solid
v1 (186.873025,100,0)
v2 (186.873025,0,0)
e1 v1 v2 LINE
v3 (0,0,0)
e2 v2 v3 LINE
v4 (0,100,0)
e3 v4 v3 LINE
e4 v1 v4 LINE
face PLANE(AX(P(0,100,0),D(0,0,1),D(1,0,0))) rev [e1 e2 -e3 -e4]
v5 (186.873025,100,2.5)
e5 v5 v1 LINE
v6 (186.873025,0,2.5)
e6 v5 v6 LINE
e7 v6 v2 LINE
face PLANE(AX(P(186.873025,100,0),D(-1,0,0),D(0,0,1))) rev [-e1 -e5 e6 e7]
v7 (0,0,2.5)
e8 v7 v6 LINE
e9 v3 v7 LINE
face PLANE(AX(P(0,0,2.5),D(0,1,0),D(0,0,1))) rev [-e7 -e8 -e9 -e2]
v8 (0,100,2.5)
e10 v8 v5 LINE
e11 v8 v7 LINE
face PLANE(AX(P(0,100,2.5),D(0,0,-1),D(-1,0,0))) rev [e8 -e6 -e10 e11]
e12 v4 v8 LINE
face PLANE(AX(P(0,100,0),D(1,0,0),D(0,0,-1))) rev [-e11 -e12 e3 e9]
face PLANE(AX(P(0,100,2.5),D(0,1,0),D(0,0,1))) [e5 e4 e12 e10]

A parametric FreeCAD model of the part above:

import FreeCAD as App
import Part
import Sketcher
from FreeCAD import Vector
Q = App.Units.Quantity


def add_polygon(sketch, points):
    """Adds a closed chain of lines whose ends are joined by coincident constraints."""
    first, n = sketch.GeometryCount, len(points)
    for a, b in zip(points, points[1:] + points[:1]):
        sketch.addGeometry(Part.LineSegment(App.Vector(*a, 0), App.Vector(*b, 0)), False)
    for i in range(n):
        sketch.addConstraint(Sketcher.Constraint("Coincident", first + i, 2, first + (i + 1) % n, 1))

doc = App.newDocument("Part")
body = doc.addObject("PartDesign::Body", "Body")

# Sketch on XZ plane
sketch1 = body.newObject("Sketcher::SketchObject", "Sketch")
sketch1.AttachmentSupport = (doc.getObject("XZ_Plane"), [""])
sketch1.MapMode = "FlatFace"
add_polygon(sketch1, [(0, 0), (0, 2.5), (186.873025, 2.5), (186.873025, 0)])  # lines 0-3
sketch1.addConstraint(Sketcher.Constraint("Vertical", 0))
sketch1.addConstraint(Sketcher.Constraint("Horizontal", 1))
sketch1.addConstraint(Sketcher.Constraint("Vertical", 2))
sketch1.addConstraint(Sketcher.Constraint("Horizontal", 3))
sketch1.addConstraint(Sketcher.Constraint("Coincident", 3, 2, -1, 1))
sketch1.addConstraint(Sketcher.Constraint("DistanceY", 0, 1, 0, 2, Q("2.5 mm")))
sketch1.addConstraint(Sketcher.Constraint("DistanceX", 1, 1, 1, 2, Q("186.873025 mm")))
pad1 = body.newObject("PartDesign::Pad", "Pad")
pad1.Profile = sketch1
pad1.Length = 100
pad1.Reversed = True

doc.recompute()
